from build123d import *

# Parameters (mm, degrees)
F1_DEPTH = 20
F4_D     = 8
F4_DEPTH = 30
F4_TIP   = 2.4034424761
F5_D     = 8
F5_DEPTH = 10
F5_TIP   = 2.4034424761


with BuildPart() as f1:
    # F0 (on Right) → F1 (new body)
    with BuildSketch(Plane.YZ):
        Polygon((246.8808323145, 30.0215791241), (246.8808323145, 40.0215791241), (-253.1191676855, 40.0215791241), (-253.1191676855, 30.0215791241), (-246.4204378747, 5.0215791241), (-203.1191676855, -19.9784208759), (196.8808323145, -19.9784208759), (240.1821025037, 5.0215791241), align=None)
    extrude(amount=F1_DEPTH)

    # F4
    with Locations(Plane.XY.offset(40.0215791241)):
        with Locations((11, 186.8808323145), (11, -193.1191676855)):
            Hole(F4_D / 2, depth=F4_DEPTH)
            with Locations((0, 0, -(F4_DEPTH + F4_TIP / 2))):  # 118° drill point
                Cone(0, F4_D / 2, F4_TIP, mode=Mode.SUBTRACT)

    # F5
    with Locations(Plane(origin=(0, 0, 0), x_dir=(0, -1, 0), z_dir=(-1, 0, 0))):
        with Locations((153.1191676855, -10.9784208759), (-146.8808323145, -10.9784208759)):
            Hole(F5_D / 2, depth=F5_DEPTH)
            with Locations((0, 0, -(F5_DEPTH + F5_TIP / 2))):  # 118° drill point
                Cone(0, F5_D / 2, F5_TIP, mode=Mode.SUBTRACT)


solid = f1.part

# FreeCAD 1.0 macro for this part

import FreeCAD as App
import Part
import Sketcher

V = App.Vector
Q = App.Units.Quantity


def add_polygon(sketch, points):
    """Adds a closed chain of lines whose ends are joined by coincident constraints."""
    first, n = sketch.GeometryCount, len(points)
    for a, b in zip(points, points[1:] + points[:1]):
        sketch.addGeometry(Part.LineSegment(App.Vector(*a, 0), App.Vector(*b, 0)), False)
    for i in range(n):
        sketch.addConstraint(Sketcher.Constraint("Coincident", first + i, 2, first + (i + 1) % n, 1))

doc = App.newDocument("Part")
params = doc.addObject("Spreadsheet::Sheet", "Params")
for row, (alias, value) in enumerate([
    ("sketch1_width", "500 mm"),
    ("sketch1_width2", "400 mm"),
    ("sketch1_height", "10 mm"),
    ("sketch1_length", "50 mm"),
    ("pad1_length", "20 mm"),
    ("sketch2_diameter", "8 mm"),
    ("hole_diameter", "8 mm"),
    ("hole_depth", "30 mm"),
    ("sketch3_diameter", "8 mm"),
    ("hole2_diameter", "8 mm"),
    ("hole2_depth", "10 mm"),
], start=1):
    params.set(f"A{row}", alias)
    params.set(f"B{row}", "=" + value)
    params.setAlias(f"B{row}", alias)

body = doc.addObject("PartDesign::Body", "Body")

# Sketch on YZ plane
sketch1 = body.newObject("Sketcher::SketchObject", "Sketch")
sketch1.AttachmentSupport = (doc.getObject("YZ_Plane"), [""])
sketch1.MapMode = "FlatFace"
add_polygon(sketch1, [(247, 30), (247, 40), (-253, 40), (-253, 30), (-246, 5), (-203, -20), (197, -20), (240, 5)])  # lines 0-7
sketch1.addConstraint(Sketcher.Constraint("Vertical", 0))
sketch1.addConstraint(Sketcher.Constraint("Horizontal", 1))
sketch1.addConstraint(Sketcher.Constraint("Vertical", 2))
sketch1.addConstraint(Sketcher.Constraint("Horizontal", 5))
sketch1.addConstraint(Sketcher.Constraint("Horizontal", 3, 2, 6, 2))
sketch1.addConstraint(Sketcher.Constraint("Horizontal", 2, 2, 7, 2))
sketch1.addConstraint(Sketcher.Constraint("Equal", 4, 6))
sketch1.addConstraint(Sketcher.Constraint("Equal", 3, 7))
sketch1.addConstraint(Sketcher.Constraint("DistanceX", 1, 2, 1, 1, Q("500 mm")))
sketch1.addConstraint(Sketcher.Constraint("DistanceX", 5, 1, 5, 2, Q("400 mm")))
sketch1.addConstraint(Sketcher.Constraint("DistanceY", 0, 1, 0, 2, Q("10 mm")))
sketch1.addConstraint(Sketcher.Constraint("Angle", 3, Q("-75 deg")))
sketch1.addConstraint(Sketcher.Constraint("Angle", 4, Q("-30 deg")))
sketch1.addConstraint(Sketcher.Constraint("Distance", 4, Q("50 mm")))
sketch1.addConstraint(Sketcher.Constraint("DistanceY", -1, 1, 0, 2, Q("40.021579 mm")))
sketch1.addConstraint(Sketcher.Constraint("DistanceX", -1, 1, 0, 2, Q("246.880832 mm")))
sketch1.setExpression("Constraints[16]", "Params.sketch1_width")
sketch1.setExpression("Constraints[17]", "Params.sketch1_width2")
sketch1.setExpression("Constraints[18]", "Params.sketch1_height")
sketch1.setExpression("Constraints[21]", "Params.sketch1_length")
pad1 = body.newObject("PartDesign::Pad", "Pad")
pad1.Profile = sketch1
pad1.setExpression("Length", "Params.pad1_length")

# Sketch on XY plane
sketch2 = body.newObject("Sketcher::SketchObject", "Sketch001")
sketch2.AttachmentSupport = (doc.getObject("XY_Plane"), [""])
sketch2.MapMode = "FlatFace"
sketch2.AttachmentOffset = App.Placement(V(0, 0, 40.021579), App.Rotation())
sketch2.addGeometry(Part.Circle(V(11, 186.9, 0), V(0, 0, 1), 4), False)
sketch2.addGeometry(Part.Circle(V(11, -193.1, 0), V(0, 0, 1), 4), False)
sketch2.addConstraint(Sketcher.Constraint("Equal", 0, 1))
sketch2.addConstraint(Sketcher.Constraint("Vertical", 0, 3, 1, 3))
sketch2.addConstraint(Sketcher.Constraint("Diameter", 0, Q("8 mm")))
sketch2.addConstraint(Sketcher.Constraint("DistanceX", -1, 1, 0, 3, Q("11 mm")))
sketch2.addConstraint(Sketcher.Constraint("DistanceY", 1, 3, 0, 3, Q("380 mm")))
sketch2.addConstraint(Sketcher.Constraint("DistanceY", -1, 1, 0, 3, Q("186.880832 mm")))
sketch2.setExpression("Constraints[2]", "Params.sketch2_diameter")
doc.recompute()
hole = body.newObject("PartDesign::Hole", "Hole")
hole.Profile = sketch2
hole.ThreadType = "None"
hole.setExpression("Diameter", "Params.hole_diameter")
hole.DepthType = "Dimension"
hole.setExpression("Depth", "Params.hole_depth")
hole.DrillPoint = "Angled"
hole.DrillPointAngle = 118

# Sketch on YZ plane
sketch3 = body.newObject("Sketcher::SketchObject", "Sketch002")
sketch3.AttachmentSupport = (doc.getObject("YZ_Plane"), [""])
sketch3.MapMode = "FlatFace"
sketch3.addGeometry(Part.Circle(V(-153.1, -11, 0), V(0, 0, 1), 4), False)
sketch3.addGeometry(Part.Circle(V(146.9, -11, 0), V(0, 0, 1), 4), False)
sketch3.addConstraint(Sketcher.Constraint("Equal", 0, 1))
sketch3.addConstraint(Sketcher.Constraint("Horizontal", 0, 3, 1, 3))
sketch3.addConstraint(Sketcher.Constraint("Diameter", 0, Q("8 mm")))
sketch3.addConstraint(Sketcher.Constraint("DistanceX", 0, 3, 1, 3, Q("300 mm")))
sketch3.addConstraint(Sketcher.Constraint("DistanceY", 0, 3, -1, 1, Q("10.978421 mm")))
sketch3.addConstraint(Sketcher.Constraint("DistanceX", 0, 3, -1, 1, Q("153.119168 mm")))
sketch3.setExpression("Constraints[2]", "Params.sketch3_diameter")
doc.recompute()
hole2 = body.newObject("PartDesign::Hole", "Hole001")
hole2.Profile = sketch3
hole2.ThreadType = "None"
hole2.setExpression("Diameter", "Params.hole2_diameter")
hole2.DepthType = "Dimension"
hole2.setExpression("Depth", "Params.hole2_depth")
hole2.DrillPoint = "Angled"
hole2.DrillPointAngle = 118
hole2.Reversed = True

doc.recompute()
